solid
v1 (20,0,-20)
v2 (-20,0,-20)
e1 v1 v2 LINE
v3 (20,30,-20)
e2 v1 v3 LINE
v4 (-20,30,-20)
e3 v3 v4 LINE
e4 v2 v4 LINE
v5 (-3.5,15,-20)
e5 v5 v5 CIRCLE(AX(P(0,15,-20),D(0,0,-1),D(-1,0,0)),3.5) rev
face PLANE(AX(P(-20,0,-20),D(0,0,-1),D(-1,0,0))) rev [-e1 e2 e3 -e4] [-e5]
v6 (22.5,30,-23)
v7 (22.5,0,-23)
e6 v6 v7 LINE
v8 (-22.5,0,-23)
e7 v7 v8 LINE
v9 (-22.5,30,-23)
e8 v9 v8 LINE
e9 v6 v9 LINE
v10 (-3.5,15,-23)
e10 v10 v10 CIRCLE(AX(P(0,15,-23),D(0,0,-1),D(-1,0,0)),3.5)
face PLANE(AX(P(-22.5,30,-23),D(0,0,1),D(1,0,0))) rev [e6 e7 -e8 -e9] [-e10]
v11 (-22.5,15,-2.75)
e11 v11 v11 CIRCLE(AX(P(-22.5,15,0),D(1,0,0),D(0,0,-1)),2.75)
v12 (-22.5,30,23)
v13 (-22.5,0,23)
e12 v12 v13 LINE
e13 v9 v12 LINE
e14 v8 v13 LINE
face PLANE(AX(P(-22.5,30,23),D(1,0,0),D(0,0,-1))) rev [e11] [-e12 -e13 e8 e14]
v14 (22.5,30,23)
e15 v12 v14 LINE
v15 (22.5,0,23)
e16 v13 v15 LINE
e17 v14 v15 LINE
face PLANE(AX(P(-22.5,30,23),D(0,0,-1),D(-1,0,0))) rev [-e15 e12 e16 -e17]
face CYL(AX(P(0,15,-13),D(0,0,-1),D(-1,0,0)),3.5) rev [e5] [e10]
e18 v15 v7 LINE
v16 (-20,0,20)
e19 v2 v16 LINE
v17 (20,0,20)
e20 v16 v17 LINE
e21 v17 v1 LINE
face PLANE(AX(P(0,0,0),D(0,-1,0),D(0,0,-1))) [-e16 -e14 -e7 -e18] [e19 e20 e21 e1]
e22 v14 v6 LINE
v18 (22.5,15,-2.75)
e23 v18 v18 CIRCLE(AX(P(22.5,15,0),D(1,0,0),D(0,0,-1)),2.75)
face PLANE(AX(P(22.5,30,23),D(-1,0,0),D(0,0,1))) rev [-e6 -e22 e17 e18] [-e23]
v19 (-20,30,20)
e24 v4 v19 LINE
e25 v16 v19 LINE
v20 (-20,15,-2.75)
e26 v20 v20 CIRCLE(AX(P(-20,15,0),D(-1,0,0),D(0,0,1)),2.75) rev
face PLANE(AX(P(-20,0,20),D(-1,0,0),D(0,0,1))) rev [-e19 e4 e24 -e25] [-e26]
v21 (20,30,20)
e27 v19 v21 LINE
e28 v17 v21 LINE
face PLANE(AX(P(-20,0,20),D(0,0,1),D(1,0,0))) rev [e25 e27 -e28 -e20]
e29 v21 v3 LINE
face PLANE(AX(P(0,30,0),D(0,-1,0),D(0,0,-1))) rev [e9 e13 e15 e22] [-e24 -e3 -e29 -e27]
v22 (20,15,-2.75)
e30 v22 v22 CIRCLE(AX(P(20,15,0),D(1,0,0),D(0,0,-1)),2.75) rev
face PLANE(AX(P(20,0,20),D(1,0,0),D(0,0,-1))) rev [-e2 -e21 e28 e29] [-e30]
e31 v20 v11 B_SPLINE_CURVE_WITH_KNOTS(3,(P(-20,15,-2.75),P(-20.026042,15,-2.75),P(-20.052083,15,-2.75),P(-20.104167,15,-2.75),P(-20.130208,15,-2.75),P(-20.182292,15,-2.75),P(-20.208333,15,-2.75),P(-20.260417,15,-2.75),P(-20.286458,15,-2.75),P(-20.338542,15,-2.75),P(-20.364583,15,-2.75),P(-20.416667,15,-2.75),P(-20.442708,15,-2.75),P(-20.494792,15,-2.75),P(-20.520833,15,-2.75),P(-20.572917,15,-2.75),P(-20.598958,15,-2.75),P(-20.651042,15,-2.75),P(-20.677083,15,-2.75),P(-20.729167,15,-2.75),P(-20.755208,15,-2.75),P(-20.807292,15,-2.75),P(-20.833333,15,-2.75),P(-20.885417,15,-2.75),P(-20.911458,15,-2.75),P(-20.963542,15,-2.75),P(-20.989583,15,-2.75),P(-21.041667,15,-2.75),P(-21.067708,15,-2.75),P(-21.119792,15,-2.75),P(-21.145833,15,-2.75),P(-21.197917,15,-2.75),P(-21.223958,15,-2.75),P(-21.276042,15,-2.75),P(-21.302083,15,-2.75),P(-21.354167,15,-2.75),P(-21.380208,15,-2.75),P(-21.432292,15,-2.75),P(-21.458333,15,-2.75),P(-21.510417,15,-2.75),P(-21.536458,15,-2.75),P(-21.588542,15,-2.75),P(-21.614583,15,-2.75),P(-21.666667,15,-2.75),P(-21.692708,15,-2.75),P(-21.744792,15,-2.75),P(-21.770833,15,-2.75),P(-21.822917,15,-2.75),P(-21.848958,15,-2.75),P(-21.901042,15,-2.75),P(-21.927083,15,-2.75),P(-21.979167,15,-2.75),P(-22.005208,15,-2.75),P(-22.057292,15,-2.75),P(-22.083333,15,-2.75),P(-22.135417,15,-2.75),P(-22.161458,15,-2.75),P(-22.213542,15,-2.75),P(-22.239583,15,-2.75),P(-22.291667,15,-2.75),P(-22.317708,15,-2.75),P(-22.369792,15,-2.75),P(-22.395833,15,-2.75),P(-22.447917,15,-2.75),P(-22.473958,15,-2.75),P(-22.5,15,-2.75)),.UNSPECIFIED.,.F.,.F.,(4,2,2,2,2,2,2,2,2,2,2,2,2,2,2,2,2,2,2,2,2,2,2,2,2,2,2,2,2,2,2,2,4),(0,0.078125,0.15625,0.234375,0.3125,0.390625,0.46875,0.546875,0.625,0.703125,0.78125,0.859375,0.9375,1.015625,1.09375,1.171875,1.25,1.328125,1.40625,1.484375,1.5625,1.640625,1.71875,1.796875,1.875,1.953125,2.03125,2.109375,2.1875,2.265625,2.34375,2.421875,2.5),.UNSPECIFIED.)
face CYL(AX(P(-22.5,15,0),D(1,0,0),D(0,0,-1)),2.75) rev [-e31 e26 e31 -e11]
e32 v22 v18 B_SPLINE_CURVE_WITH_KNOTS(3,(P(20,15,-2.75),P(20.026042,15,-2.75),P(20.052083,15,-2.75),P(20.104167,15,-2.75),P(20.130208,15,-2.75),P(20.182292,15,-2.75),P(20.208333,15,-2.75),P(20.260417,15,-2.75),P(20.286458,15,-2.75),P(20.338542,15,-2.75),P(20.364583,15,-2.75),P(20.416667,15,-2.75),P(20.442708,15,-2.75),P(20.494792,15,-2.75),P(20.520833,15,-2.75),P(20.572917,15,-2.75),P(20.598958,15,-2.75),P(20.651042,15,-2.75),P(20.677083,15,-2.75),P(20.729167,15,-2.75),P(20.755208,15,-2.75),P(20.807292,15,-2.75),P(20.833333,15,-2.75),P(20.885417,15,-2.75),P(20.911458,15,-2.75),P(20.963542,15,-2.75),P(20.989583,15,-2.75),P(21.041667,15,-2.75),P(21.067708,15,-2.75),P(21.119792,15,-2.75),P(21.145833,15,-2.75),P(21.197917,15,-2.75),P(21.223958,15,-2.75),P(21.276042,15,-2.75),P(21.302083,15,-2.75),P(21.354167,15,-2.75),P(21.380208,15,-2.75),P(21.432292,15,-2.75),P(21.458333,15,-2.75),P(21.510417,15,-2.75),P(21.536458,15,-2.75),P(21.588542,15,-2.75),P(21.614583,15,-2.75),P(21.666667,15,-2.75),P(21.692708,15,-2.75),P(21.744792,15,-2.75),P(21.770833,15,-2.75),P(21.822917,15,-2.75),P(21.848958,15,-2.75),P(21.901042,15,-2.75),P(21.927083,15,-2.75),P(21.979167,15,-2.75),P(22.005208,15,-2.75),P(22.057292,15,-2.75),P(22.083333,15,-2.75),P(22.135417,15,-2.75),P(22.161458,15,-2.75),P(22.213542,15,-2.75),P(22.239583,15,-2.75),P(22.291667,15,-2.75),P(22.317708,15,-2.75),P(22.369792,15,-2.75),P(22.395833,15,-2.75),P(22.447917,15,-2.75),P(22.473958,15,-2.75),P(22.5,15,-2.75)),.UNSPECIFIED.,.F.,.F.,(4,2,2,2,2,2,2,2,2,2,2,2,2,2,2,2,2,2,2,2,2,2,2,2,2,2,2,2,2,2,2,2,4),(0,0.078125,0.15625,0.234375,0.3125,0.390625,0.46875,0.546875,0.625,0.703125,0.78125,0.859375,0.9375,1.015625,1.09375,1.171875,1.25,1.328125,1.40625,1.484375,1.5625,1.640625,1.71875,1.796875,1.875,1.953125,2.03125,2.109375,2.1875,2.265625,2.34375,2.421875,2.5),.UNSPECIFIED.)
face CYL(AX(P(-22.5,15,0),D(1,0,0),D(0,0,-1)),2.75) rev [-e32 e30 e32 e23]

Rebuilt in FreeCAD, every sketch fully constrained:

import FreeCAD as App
import Part
import Sketcher

V = App.Vector
Q = App.Units.Quantity

doc = App.newDocument("Part")
params = doc.addObject("Spreadsheet::Sheet", "Params")
for row, (alias, value) in enumerate([
    ("sketch1_width", "45 mm"),
    ("sketch1_height", "46 mm"),
    ("pad1_length", "30 mm"),
    ("sketch2_diameter", "7 mm"),
    ("pocket1_length", "10 mm"),
    ("sketch3_diameter", "5.5 mm"),
    ("sketch4_width", "40 mm"),
], start=1):
    params.set(f"A{row}", alias)
    params.set(f"B{row}", "=" + value)
    params.setAlias(f"B{row}", alias)

body = doc.addObject("PartDesign::Body", "Body")

# Sketch on XZ plane
sketch1 = body.newObject("Sketcher::SketchObject", "Sketch")
sketch1.AttachmentSupport = (doc.getObject("XZ_Plane"), [""])
sketch1.MapMode = "FlatFace"
sketch1.addGeometry(Part.LineSegment(V(-22.5, -23, 0), V(-22.5, 23, 0)), False)
sketch1.addGeometry(Part.LineSegment(V(-22.5, 23, 0), V(22.5, 23, 0)), False)
sketch1.addGeometry(Part.LineSegment(V(22.5, 23, 0), V(22.5, -23, 0)), False)
sketch1.addGeometry(Part.LineSegment(V(22.5, -23, 0), V(-22.5, -23, 0)), False)
sketch1.addConstraint(Sketcher.Constraint("Coincident", 0, 2, 1, 1))
sketch1.addConstraint(Sketcher.Constraint("Coincident", 1, 2, 2, 1))
sketch1.addConstraint(Sketcher.Constraint("Coincident", 2, 2, 3, 1))
sketch1.addConstraint(Sketcher.Constraint("Coincident", 3, 2, 0, 1))
sketch1.addConstraint(Sketcher.Constraint("Vertical", 0))
sketch1.addConstraint(Sketcher.Constraint("Horizontal", 1))
sketch1.addConstraint(Sketcher.Constraint("Vertical", 2))
sketch1.addConstraint(Sketcher.Constraint("Horizontal", 3))
sketch1.addConstraint(Sketcher.Constraint("Symmetric", 0, 2, 2, 2, -1, 1))
sketch1.addConstraint(Sketcher.Constraint("DistanceX", 1, 1, 1, 2, Q("45 mm")))
sketch1.addConstraint(Sketcher.Constraint("DistanceY", 0, 1, 0, 2, Q("46 mm")))
sketch1.setExpression("Constraints[9]", "Params.sketch1_width")
sketch1.setExpression("Constraints[10]", "Params.sketch1_height")
pad1 = body.newObject("PartDesign::Pad", "Pad")
pad1.Profile = sketch1
pad1.setExpression("Length", "Params.pad1_length")
pad1.Reversed = True

# Sketch on XY plane
sketch2 = body.newObject("Sketcher::SketchObject", "Sketch001")
sketch2.AttachmentSupport = (doc.getObject("XY_Plane"), [""])
sketch2.MapMode = "FlatFace"
sketch2.AttachmentOffset = App.Placement(V(0, 0, -23), App.Rotation())
sketch2.addGeometry(Part.Circle(V(0, 15, 0), V(0, 0, 1), 3.5), False)
sketch2.addConstraint(Sketcher.Constraint("PointOnObject", 0, 3, -2))
sketch2.addConstraint(Sketcher.Constraint("Diameter", 0, Q("7 mm")))
sketch2.addConstraint(Sketcher.Constraint("DistanceY", -1, 1, 0, 3, Q("15 mm")))
sketch2.setExpression("Constraints[1]", "Params.sketch2_diameter")
pocket1 = body.newObject("PartDesign::Pocket", "Pocket")
pocket1.Profile = sketch2
pocket1.setExpression("Length", "Params.pocket1_length")
pocket1.Reversed = True

# Sketch on YZ plane
sketch3 = body.newObject("Sketcher::SketchObject", "Sketch002")
sketch3.AttachmentSupport = (doc.getObject("YZ_Plane"), [""])
sketch3.MapMode = "FlatFace"
sketch3.AttachmentOffset = App.Placement(V(0, 0, 22.5), App.Rotation())
sketch3.addGeometry(Part.Circle(V(15, 0, 0), V(0, 0, 1), 2.75), False)
sketch3.addConstraint(Sketcher.Constraint("PointOnObject", 0, 3, -1))
sketch3.addConstraint(Sketcher.Constraint("Diameter", 0, Q("5.5 mm")))
sketch3.addConstraint(Sketcher.Constraint("DistanceX", -1, 1, 0, 3, Q("15 mm")))
sketch3.setExpression("Constraints[1]", "Params.sketch3_diameter")
pocket2 = body.newObject("PartDesign::Pocket", "Pocket001")
pocket2.Profile = sketch3
pocket2.Type = "ThroughAll"

# Sketch on XZ plane
sketch4 = body.newObject("Sketcher::SketchObject", "Sketch003")
sketch4.AttachmentSupport = (doc.getObject("XZ_Plane"), [""])
sketch4.MapMode = "FlatFace"
sketch4.AttachmentOffset = App.Placement(V(0, 0, -30), App.Rotation())
sketch4.addGeometry(Part.LineSegment(V(-20, -20, 0), V(-20, 20, 0)), False)
sketch4.addGeometry(Part.LineSegment(V(-20, 20, 0), V(20, 20, 0)), False)
sketch4.addGeometry(Part.LineSegment(V(20, 20, 0), V(20, -20, 0)), False)
sketch4.addGeometry(Part.LineSegment(V(20, -20, 0), V(-20, -20, 0)), False)
sketch4.addConstraint(Sketcher.Constraint("Coincident", 0, 2, 1, 1))
sketch4.addConstraint(Sketcher.Constraint("Coincident", 1, 2, 2, 1))
sketch4.addConstraint(Sketcher.Constraint("Coincident", 2, 2, 3, 1))
sketch4.addConstraint(Sketcher.Constraint("Coincident", 3, 2, 0, 1))
sketch4.addConstraint(Sketcher.Constraint("Vertical", 0))
sketch4.addConstraint(Sketcher.Constraint("Horizontal", 1))
sketch4.addConstraint(Sketcher.Constraint("Vertical", 2))
sketch4.addConstraint(Sketcher.Constraint("Horizontal", 3))
sketch4.addConstraint(Sketcher.Constraint("Symmetric", 0, 2, 2, 2, -1, 1))
sketch4.addConstraint(Sketcher.Constraint("Equal", 3, 0))
sketch4.addConstraint(Sketcher.Constraint("DistanceX", 1, 1, 1, 2, Q("40 mm")))
sketch4.setExpression("Constraints[10]", "Params.sketch4_width")
pocket3 = body.newObject("PartDesign::Pocket", "Pocket002")
pocket3.Profile = sketch4
pocket3.Type = "ThroughAll"
pocket3.Reversed = True

doc.recompute()
